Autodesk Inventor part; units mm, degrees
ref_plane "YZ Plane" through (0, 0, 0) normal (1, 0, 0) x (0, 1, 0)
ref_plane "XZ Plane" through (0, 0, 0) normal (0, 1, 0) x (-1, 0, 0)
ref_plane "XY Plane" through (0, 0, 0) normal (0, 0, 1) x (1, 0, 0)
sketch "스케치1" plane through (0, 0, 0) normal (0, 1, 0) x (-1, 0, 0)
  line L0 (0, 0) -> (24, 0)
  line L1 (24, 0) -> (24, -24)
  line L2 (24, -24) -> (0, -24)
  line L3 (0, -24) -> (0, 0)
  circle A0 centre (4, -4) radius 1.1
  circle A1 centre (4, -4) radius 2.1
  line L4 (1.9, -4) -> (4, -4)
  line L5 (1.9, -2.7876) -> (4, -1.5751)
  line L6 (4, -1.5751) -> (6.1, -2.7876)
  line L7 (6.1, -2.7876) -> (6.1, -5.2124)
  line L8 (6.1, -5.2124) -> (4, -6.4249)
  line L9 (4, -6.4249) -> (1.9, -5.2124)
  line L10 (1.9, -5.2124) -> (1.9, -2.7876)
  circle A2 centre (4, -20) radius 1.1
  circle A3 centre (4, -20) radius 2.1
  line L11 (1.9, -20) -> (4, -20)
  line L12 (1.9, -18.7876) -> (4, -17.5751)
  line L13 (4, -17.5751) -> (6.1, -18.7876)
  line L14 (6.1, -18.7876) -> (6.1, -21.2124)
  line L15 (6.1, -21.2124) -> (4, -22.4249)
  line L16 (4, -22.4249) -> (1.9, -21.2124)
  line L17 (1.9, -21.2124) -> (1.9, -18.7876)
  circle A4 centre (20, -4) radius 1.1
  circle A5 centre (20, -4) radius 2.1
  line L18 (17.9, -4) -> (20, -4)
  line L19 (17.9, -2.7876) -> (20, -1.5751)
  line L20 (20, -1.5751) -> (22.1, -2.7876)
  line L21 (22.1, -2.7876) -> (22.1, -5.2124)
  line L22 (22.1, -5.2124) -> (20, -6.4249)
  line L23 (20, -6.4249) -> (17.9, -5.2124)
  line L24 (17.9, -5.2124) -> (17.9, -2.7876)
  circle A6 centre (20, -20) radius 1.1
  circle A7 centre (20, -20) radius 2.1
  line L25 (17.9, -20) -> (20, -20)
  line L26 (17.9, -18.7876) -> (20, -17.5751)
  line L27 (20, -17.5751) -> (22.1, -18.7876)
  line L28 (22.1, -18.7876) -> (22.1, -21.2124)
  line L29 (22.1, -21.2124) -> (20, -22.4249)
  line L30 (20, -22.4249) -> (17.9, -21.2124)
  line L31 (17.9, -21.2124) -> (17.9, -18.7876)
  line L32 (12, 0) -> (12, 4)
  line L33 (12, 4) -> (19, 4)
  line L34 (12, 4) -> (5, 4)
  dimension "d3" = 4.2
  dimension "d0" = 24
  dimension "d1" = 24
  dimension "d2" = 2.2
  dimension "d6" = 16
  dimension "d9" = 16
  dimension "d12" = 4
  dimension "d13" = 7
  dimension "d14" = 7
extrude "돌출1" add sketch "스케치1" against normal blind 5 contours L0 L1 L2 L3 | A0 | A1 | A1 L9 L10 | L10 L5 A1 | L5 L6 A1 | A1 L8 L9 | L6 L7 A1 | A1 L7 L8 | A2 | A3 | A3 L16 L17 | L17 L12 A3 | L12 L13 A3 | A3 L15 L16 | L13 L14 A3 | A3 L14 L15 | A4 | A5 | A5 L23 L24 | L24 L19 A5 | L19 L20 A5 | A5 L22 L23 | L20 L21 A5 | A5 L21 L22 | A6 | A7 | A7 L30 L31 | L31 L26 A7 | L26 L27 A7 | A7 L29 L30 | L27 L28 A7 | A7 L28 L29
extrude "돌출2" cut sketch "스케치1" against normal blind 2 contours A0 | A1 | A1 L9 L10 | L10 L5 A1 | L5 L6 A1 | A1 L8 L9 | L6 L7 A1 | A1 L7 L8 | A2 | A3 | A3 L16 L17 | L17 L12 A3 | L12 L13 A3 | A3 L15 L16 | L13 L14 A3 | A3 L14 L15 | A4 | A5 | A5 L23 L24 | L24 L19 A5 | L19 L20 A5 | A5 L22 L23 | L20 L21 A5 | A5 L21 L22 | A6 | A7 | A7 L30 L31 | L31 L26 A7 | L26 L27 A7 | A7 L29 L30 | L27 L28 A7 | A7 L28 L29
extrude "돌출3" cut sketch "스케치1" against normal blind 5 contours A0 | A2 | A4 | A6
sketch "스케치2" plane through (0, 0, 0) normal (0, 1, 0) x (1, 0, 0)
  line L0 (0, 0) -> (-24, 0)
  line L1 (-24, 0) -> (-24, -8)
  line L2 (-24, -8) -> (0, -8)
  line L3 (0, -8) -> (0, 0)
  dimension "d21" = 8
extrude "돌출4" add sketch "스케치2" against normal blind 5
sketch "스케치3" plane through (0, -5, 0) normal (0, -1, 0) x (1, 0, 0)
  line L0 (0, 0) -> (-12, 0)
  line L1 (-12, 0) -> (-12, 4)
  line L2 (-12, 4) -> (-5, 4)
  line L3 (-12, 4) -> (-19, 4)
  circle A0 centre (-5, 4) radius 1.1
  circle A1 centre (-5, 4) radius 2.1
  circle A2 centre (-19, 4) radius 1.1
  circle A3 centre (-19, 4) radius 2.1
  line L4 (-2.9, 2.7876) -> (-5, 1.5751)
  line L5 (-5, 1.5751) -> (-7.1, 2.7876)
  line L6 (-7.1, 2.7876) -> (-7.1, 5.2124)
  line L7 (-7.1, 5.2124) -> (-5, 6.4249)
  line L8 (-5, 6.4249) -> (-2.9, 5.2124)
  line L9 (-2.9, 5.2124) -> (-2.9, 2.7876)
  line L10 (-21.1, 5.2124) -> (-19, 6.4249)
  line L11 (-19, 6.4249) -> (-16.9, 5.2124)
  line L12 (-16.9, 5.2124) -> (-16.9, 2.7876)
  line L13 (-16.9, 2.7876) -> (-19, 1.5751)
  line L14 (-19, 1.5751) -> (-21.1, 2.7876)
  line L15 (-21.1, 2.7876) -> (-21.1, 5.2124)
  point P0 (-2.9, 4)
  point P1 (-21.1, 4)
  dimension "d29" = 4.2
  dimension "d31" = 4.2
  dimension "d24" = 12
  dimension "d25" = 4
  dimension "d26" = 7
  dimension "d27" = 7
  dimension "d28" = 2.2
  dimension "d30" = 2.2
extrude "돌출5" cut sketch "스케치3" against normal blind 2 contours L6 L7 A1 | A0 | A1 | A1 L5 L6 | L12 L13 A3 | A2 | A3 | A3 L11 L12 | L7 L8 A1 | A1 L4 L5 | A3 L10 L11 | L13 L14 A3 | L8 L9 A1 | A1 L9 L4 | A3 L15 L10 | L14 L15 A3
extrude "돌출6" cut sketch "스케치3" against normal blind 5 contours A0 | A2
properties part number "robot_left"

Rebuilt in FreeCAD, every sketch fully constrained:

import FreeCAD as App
import Part
import Sketcher

V = App.Vector
Q = App.Units.Quantity

doc = App.newDocument("Part")
body = doc.addObject("PartDesign::Body", "Body")

sketch1 = body.newObject("Sketcher::SketchObject", "Sketch")
sketch1.AttachmentSupport = (doc.getObject("XZ_Plane"), [""])
sketch1.MapMode = "FlatFace"
sketch1.addGeometry(Part.LineSegment(V(0, 0, 0), V(0, -24, 0)), False)
sketch1.addGeometry(Part.LineSegment(V(0, -24, 0), V(-24, -24, 0)), False)
sketch1.addGeometry(Part.LineSegment(V(-24, -24, 0), V(-24, 0, 0)), False)
sketch1.addGeometry(Part.LineSegment(V(-24, 0, 0), V(0, 0, 0)), False)
sketch1.addConstraint(Sketcher.Constraint("Coincident", 0, 2, 1, 1))
sketch1.addConstraint(Sketcher.Constraint("Coincident", 1, 2, 2, 1))
sketch1.addConstraint(Sketcher.Constraint("Coincident", 2, 2, 3, 1))
sketch1.addConstraint(Sketcher.Constraint("Coincident", 3, 2, 0, 1))
sketch1.addConstraint(Sketcher.Constraint("Vertical", 0))
sketch1.addConstraint(Sketcher.Constraint("Horizontal", 1))
sketch1.addConstraint(Sketcher.Constraint("Vertical", 2))
sketch1.addConstraint(Sketcher.Constraint("Horizontal", 3))
sketch1.addConstraint(Sketcher.Constraint("Coincident", 3, 2, -1, 1))
sketch1.addConstraint(Sketcher.Constraint("Equal", 3, 0))
sketch1.addConstraint(Sketcher.Constraint("DistanceX", 1, 2, 1, 1, Q("24 mm")))
pad1 = body.newObject("PartDesign::Pad", "Pad")
pad1.Profile = sketch1
pad1.Length = 5

sketch2 = body.newObject("Sketcher::SketchObject", "Sketch001")
sketch2.AttachmentSupport = (doc.getObject("XZ_Plane"), [""])
sketch2.MapMode = "FlatFace"
sketch2.addGeometry(Part.LineSegment(V(-1.9, -2.7876, 0), V(-1.9, -4, 0)), False)
sketch2.addGeometry(Part.LineSegment(V(-1.9, -4, 0), V(-1.9, -5.2124, 0)), False)
sketch2.addGeometry(Part.LineSegment(V(-1.9, -5.2124, 0), V(-4, -6.4249, 0)), False)
sketch2.addGeometry(Part.LineSegment(V(-4, -6.4249, 0), V(-6.1, -5.2124, 0)), False)
sketch2.addGeometry(Part.LineSegment(V(-6.1, -5.2124, 0), V(-6.1, -2.7876, 0)), False)
sketch2.addGeometry(Part.LineSegment(V(-6.1, -2.7876, 0), V(-4, -1.5751, 0)), False)
sketch2.addGeometry(Part.LineSegment(V(-4, -1.5751, 0), V(-1.9, -2.7876, 0)), False)
sketch2.addGeometry(Part.LineSegment(V(-1.9, -18.7876, 0), V(-1.9, -20, 0)), False)
sketch2.addGeometry(Part.LineSegment(V(-1.9, -20, 0), V(-1.9, -21.2124, 0)), False)
sketch2.addGeometry(Part.LineSegment(V(-1.9, -21.2124, 0), V(-4, -22.4249, 0)), False)
sketch2.addGeometry(Part.LineSegment(V(-4, -22.4249, 0), V(-6.1, -21.2124, 0)), False)
sketch2.addGeometry(Part.LineSegment(V(-6.1, -21.2124, 0), V(-6.1, -18.7876, 0)), False)
sketch2.addGeometry(Part.LineSegment(V(-6.1, -18.7876, 0), V(-4, -17.5751, 0)), False)
sketch2.addGeometry(Part.LineSegment(V(-4, -17.5751, 0), V(-1.9, -18.7876, 0)), False)
sketch2.addGeometry(Part.LineSegment(V(-17.9, -2.7876, 0), V(-17.9, -4, 0)), False)
sketch2.addGeometry(Part.LineSegment(V(-17.9, -4, 0), V(-17.9, -5.2124, 0)), False)
sketch2.addGeometry(Part.LineSegment(V(-17.9, -5.2124, 0), V(-20, -6.4249, 0)), False)
sketch2.addGeometry(Part.LineSegment(V(-20, -6.4249, 0), V(-22.1, -5.2124, 0)), False)
sketch2.addGeometry(Part.LineSegment(V(-22.1, -5.2124, 0), V(-22.1, -2.7876, 0)), False)
sketch2.addGeometry(Part.LineSegment(V(-22.1, -2.7876, 0), V(-20, -1.5751, 0)), False)
sketch2.addGeometry(Part.LineSegment(V(-20, -1.5751, 0), V(-17.9, -2.7876, 0)), False)
sketch2.addGeometry(Part.LineSegment(V(-17.9, -18.7876, 0), V(-17.9, -20, 0)), False)
sketch2.addGeometry(Part.LineSegment(V(-17.9, -20, 0), V(-17.9, -21.2124, 0)), False)
sketch2.addGeometry(Part.LineSegment(V(-17.9, -21.2124, 0), V(-20, -22.4249, 0)), False)
sketch2.addGeometry(Part.LineSegment(V(-20, -22.4249, 0), V(-22.1, -21.2124, 0)), False)
sketch2.addGeometry(Part.LineSegment(V(-22.1, -21.2124, 0), V(-22.1, -18.7876, 0)), False)
sketch2.addGeometry(Part.LineSegment(V(-22.1, -18.7876, 0), V(-20, -17.5751, 0)), False)
sketch2.addGeometry(Part.LineSegment(V(-20, -17.5751, 0), V(-17.9, -18.7876, 0)), False)
sketch2.addConstraint(Sketcher.Constraint("Coincident", 0, 2, 1, 1))
sketch2.addConstraint(Sketcher.Constraint("Coincident", 1, 2, 2, 1))
sketch2.addConstraint(Sketcher.Constraint("Coincident", 2, 2, 3, 1))
sketch2.addConstraint(Sketcher.Constraint("Coincident", 3, 2, 4, 1))
sketch2.addConstraint(Sketcher.Constraint("Coincident", 4, 2, 5, 1))
sketch2.addConstraint(Sketcher.Constraint("Coincident", 5, 2, 6, 1))
sketch2.addConstraint(Sketcher.Constraint("Coincident", 6, 2, 0, 1))
sketch2.addConstraint(Sketcher.Constraint("Coincident", 7, 2, 8, 1))
sketch2.addConstraint(Sketcher.Constraint("Coincident", 8, 2, 9, 1))
sketch2.addConstraint(Sketcher.Constraint("Coincident", 9, 2, 10, 1))
sketch2.addConstraint(Sketcher.Constraint("Coincident", 10, 2, 11, 1))
sketch2.addConstraint(Sketcher.Constraint("Coincident", 11, 2, 12, 1))
sketch2.addConstraint(Sketcher.Constraint("Coincident", 12, 2, 13, 1))
sketch2.addConstraint(Sketcher.Constraint("Coincident", 13, 2, 7, 1))
sketch2.addConstraint(Sketcher.Constraint("Coincident", 14, 2, 15, 1))
sketch2.addConstraint(Sketcher.Constraint("Coincident", 15, 2, 16, 1))
sketch2.addConstraint(Sketcher.Constraint("Coincident", 16, 2, 17, 1))
sketch2.addConstraint(Sketcher.Constraint("Coincident", 17, 2, 18, 1))
sketch2.addConstraint(Sketcher.Constraint("Coincident", 18, 2, 19, 1))
sketch2.addConstraint(Sketcher.Constraint("Coincident", 19, 2, 20, 1))
sketch2.addConstraint(Sketcher.Constraint("Coincident", 20, 2, 14, 1))
sketch2.addConstraint(Sketcher.Constraint("Coincident", 21, 2, 22, 1))
sketch2.addConstraint(Sketcher.Constraint("Coincident", 22, 2, 23, 1))
sketch2.addConstraint(Sketcher.Constraint("Coincident", 23, 2, 24, 1))
sketch2.addConstraint(Sketcher.Constraint("Coincident", 24, 2, 25, 1))
sketch2.addConstraint(Sketcher.Constraint("Coincident", 25, 2, 26, 1))
sketch2.addConstraint(Sketcher.Constraint("Coincident", 26, 2, 27, 1))
sketch2.addConstraint(Sketcher.Constraint("Coincident", 27, 2, 21, 1))
sketch2.addConstraint(Sketcher.Constraint("Vertical", 0))
sketch2.addConstraint(Sketcher.Constraint("Vertical", 1))
sketch2.addConstraint(Sketcher.Constraint("Vertical", 4))
sketch2.addConstraint(Sketcher.Constraint("Vertical", 7))
sketch2.addConstraint(Sketcher.Constraint("Vertical", 8))
sketch2.addConstraint(Sketcher.Constraint("Vertical", 11))
sketch2.addConstraint(Sketcher.Constraint("Vertical", 14))
sketch2.addConstraint(Sketcher.Constraint("Vertical", 15))
sketch2.addConstraint(Sketcher.Constraint("Vertical", 18))
sketch2.addConstraint(Sketcher.Constraint("Vertical", 21))
sketch2.addConstraint(Sketcher.Constraint("Vertical", 22))
sketch2.addConstraint(Sketcher.Constraint("Vertical", 25))
sketch2.addConstraint(Sketcher.Constraint("Parallel", 2, 5))
sketch2.addConstraint(Sketcher.Constraint("Parallel", 3, 6))
sketch2.addConstraint(Sketcher.Constraint("Parallel", 5, 9))
sketch2.addConstraint(Sketcher.Constraint("Parallel", 6, 10))
sketch2.addConstraint(Sketcher.Constraint("Parallel", 9, 12))
sketch2.addConstraint(Sketcher.Constraint("Parallel", 10, 13))
sketch2.addConstraint(Sketcher.Constraint("Parallel", 12, 16))
sketch2.addConstraint(Sketcher.Constraint("Parallel", 13, 17))
sketch2.addConstraint(Sketcher.Constraint("Parallel", 16, 19))
sketch2.addConstraint(Sketcher.Constraint("Parallel", 17, 20))
sketch2.addConstraint(Sketcher.Constraint("Parallel", 19, 23))
sketch2.addConstraint(Sketcher.Constraint("Parallel", 20, 24))
sketch2.addConstraint(Sketcher.Constraint("Parallel", 23, 26))
sketch2.addConstraint(Sketcher.Constraint("Parallel", 24, 27))
sketch2.addConstraint(Sketcher.Constraint("Horizontal", 1, 2, 3, 2))
sketch2.addConstraint(Sketcher.Constraint("Horizontal", 4, 2, 6, 2))
sketch2.addConstraint(Sketcher.Constraint("Horizontal", 8, 2, 10, 2))
sketch2.addConstraint(Sketcher.Constraint("Horizontal", 11, 2, 13, 2))
sketch2.addConstraint(Sketcher.Constraint("Horizontal", 0, 2, 14, 2))
sketch2.addConstraint(Sketcher.Constraint("Horizontal", 3, 2, 15, 2))
sketch2.addConstraint(Sketcher.Constraint("Horizontal", 2, 2, 16, 2))
sketch2.addConstraint(Sketcher.Constraint("Horizontal", 15, 2, 17, 2))
sketch2.addConstraint(Sketcher.Constraint("Horizontal", 6, 2, 18, 2))
sketch2.addConstraint(Sketcher.Constraint("Horizontal", 5, 2, 19, 2))
sketch2.addConstraint(Sketcher.Constraint("Horizontal", 7, 2, 21, 2))
sketch2.addConstraint(Sketcher.Constraint("Horizontal", 10, 2, 22, 2))
sketch2.addConstraint(Sketcher.Constraint("Horizontal", 9, 2, 23, 2))
sketch2.addConstraint(Sketcher.Constraint("Horizontal", 22, 2, 24, 2))
sketch2.addConstraint(Sketcher.Constraint("Horizontal", 13, 2, 25, 2))
sketch2.addConstraint(Sketcher.Constraint("Horizontal", 12, 2, 26, 2))
sketch2.addConstraint(Sketcher.Constraint("Vertical", 2, 2, 5, 2))
sketch2.addConstraint(Sketcher.Constraint("Vertical", 6, 2, 7, 2))
sketch2.addConstraint(Sketcher.Constraint("Vertical", 5, 2, 9, 2))
sketch2.addConstraint(Sketcher.Constraint("Vertical", 20, 2, 21, 2))
sketch2.addConstraint(Sketcher.Constraint("Equal", 0, 1))
sketch2.addConstraint(Sketcher.Constraint("Equal", 1, 7))
sketch2.addConstraint(Sketcher.Constraint("Equal", 7, 8))
sketch2.addConstraint(Sketcher.Constraint("DistanceY", 0, 2, -1, 1, Q("4 mm")))
sketch2.addConstraint(Sketcher.Constraint("DistanceX", 2, 2, -1, 1, Q("4 mm")))
sketch2.addConstraint(Sketcher.Constraint("DistanceY", 7, 2, 0, 2, Q("16 mm")))
sketch2.addConstraint(Sketcher.Constraint("DistanceX", 14, 2, 0, 2, Q("16 mm")))
sketch2.addConstraint(Sketcher.Constraint("DistanceX", 3, 2, 1, 2, Q("4.2 mm")))
sketch2.addConstraint(Sketcher.Constraint("Distance", 2, Q("2.425 mm")))
sketch2.addConstraint(Sketcher.Constraint("DistanceY", 0, 2, 0, 1, Q("1.2124 mm")))
pocket1 = body.newObject("PartDesign::Pocket", "Pocket")
pocket1.Profile = sketch2
pocket1.Length = 2
pocket1.Reversed = True

sketch3 = body.newObject("Sketcher::SketchObject", "Sketch002")
sketch3.AttachmentSupport = (doc.getObject("XZ_Plane"), [""])
sketch3.MapMode = "FlatFace"
sketch3.addGeometry(Part.Circle(V(-4, -4, 0), V(0, 0, 1), 1.1), False)
sketch3.addGeometry(Part.Circle(V(-4, -20, 0), V(0, 0, 1), 1.1), False)
sketch3.addGeometry(Part.Circle(V(-20, -4, 0), V(0, 0, 1), 1.1), False)
sketch3.addGeometry(Part.Circle(V(-20, -20, 0), V(0, 0, 1), 1.1), False)
sketch3.addConstraint(Sketcher.Constraint("Equal", 0, 1))
sketch3.addConstraint(Sketcher.Constraint("Equal", 1, 2))
sketch3.addConstraint(Sketcher.Constraint("Equal", 2, 3))
sketch3.addConstraint(Sketcher.Constraint("Horizontal", 0, 3, 2, 3))
sketch3.addConstraint(Sketcher.Constraint("Horizontal", 1, 3, 3, 3))
sketch3.addConstraint(Sketcher.Constraint("Vertical", 0, 3, 1, 3))
sketch3.addConstraint(Sketcher.Constraint("Vertical", 2, 3, 3, 3))
sketch3.addConstraint(Sketcher.Constraint("Diameter", 0, Q("2.2 mm")))
sketch3.addConstraint(Sketcher.Constraint("DistanceX", 0, 3, -1, 1, Q("4 mm")))
sketch3.addConstraint(Sketcher.Constraint("DistanceY", 0, 3, -1, 1, Q("4 mm")))
sketch3.addConstraint(Sketcher.Constraint("DistanceY", 1, 3, 0, 3, Q("16 mm")))
sketch3.addConstraint(Sketcher.Constraint("DistanceX", 2, 3, 0, 3, Q("16 mm")))
pocket2 = body.newObject("PartDesign::Pocket", "Pocket001")
pocket2.Profile = sketch3
pocket2.Length = 5
pocket2.Reversed = True

sketch4 = body.newObject("Sketcher::SketchObject", "Sketch003")
sketch4.AttachmentSupport = (doc.getObject("XZ_Plane"), [""])
sketch4.MapMode = "FlatFace"
sketch4.addGeometry(Part.LineSegment(V(0, 8, 0), V(0, 0, 0)), False)
sketch4.addGeometry(Part.LineSegment(V(0, 0, 0), V(-24, 0, 0)), False)
sketch4.addGeometry(Part.LineSegment(V(-24, 0, 0), V(-24, 8, 0)), False)
sketch4.addGeometry(Part.LineSegment(V(-24, 8, 0), V(0, 8, 0)), False)
sketch4.addConstraint(Sketcher.Constraint("Coincident", 0, 2, 1, 1))
sketch4.addConstraint(Sketcher.Constraint("Coincident", 1, 2, 2, 1))
sketch4.addConstraint(Sketcher.Constraint("Coincident", 2, 2, 3, 1))
sketch4.addConstraint(Sketcher.Constraint("Coincident", 3, 2, 0, 1))
sketch4.addConstraint(Sketcher.Constraint("Vertical", 0))
sketch4.addConstraint(Sketcher.Constraint("Horizontal", 1))
sketch4.addConstraint(Sketcher.Constraint("Vertical", 2))
sketch4.addConstraint(Sketcher.Constraint("Horizontal", 3))
sketch4.addConstraint(Sketcher.Constraint("Coincident", 0, 2, -1, 1))
sketch4.addConstraint(Sketcher.Constraint("DistanceY", 0, 2, 0, 1, Q("8 mm")))
sketch4.addConstraint(Sketcher.Constraint("DistanceX", 1, 2, 1, 1, Q("24 mm")))
pad2 = body.newObject("PartDesign::Pad", "Pad001")
pad2.Profile = sketch4
pad2.Length = 5

sketch5 = body.newObject("Sketcher::SketchObject", "Sketch004")
sketch5.AttachmentSupport = (doc.getObject("XZ_Plane"), [""])
sketch5.MapMode = "FlatFace"
sketch5.AttachmentOffset = App.Placement(V(0, 0, 5), App.Rotation())
sketch5.addGeometry(Part.LineSegment(V(-7.1, 5.2124, 0), V(-7.1, 4, 0)), False)
sketch5.addGeometry(Part.LineSegment(V(-7.1, 4, 0), V(-7.1, 2.7876, 0)), False)
sketch5.addGeometry(Part.LineSegment(V(-7.1, 2.7876, 0), V(-5, 1.5751, 0)), False)
sketch5.addGeometry(Part.LineSegment(V(-5, 1.5751, 0), V(-2.9, 2.7876, 0)), False)
sketch5.addGeometry(Part.LineSegment(V(-2.9, 2.7876, 0), V(-2.9, 5.2124, 0)), False)
sketch5.addGeometry(Part.LineSegment(V(-2.9, 5.2124, 0), V(-5, 6.4249, 0)), False)
sketch5.addGeometry(Part.LineSegment(V(-5, 6.4249, 0), V(-7.1, 5.2124, 0)), False)
sketch5.addGeometry(Part.LineSegment(V(-16.9, 2.7876, 0), V(-16.9, 4, 0)), False)
sketch5.addGeometry(Part.LineSegment(V(-16.9, 4, 0), V(-16.9, 5.2124, 0)), False)
sketch5.addGeometry(Part.LineSegment(V(-16.9, 5.2124, 0), V(-19, 6.4249, 0)), False)
sketch5.addGeometry(Part.LineSegment(V(-19, 6.4249, 0), V(-21.1, 5.2124, 0)), False)
sketch5.addGeometry(Part.LineSegment(V(-21.1, 5.2124, 0), V(-21.1, 2.7876, 0)), False)
sketch5.addGeometry(Part.LineSegment(V(-21.1, 2.7876, 0), V(-19, 1.5751, 0)), False)
sketch5.addGeometry(Part.LineSegment(V(-19, 1.5751, 0), V(-16.9, 2.7876, 0)), False)
sketch5.addConstraint(Sketcher.Constraint("Coincident", 0, 2, 1, 1))
sketch5.addConstraint(Sketcher.Constraint("Coincident", 1, 2, 2, 1))
sketch5.addConstraint(Sketcher.Constraint("Coincident", 2, 2, 3, 1))
sketch5.addConstraint(Sketcher.Constraint("Coincident", 3, 2, 4, 1))
sketch5.addConstraint(Sketcher.Constraint("Coincident", 4, 2, 5, 1))
sketch5.addConstraint(Sketcher.Constraint("Coincident", 5, 2, 6, 1))
sketch5.addConstraint(Sketcher.Constraint("Coincident", 6, 2, 0, 1))
sketch5.addConstraint(Sketcher.Constraint("Coincident", 7, 2, 8, 1))
sketch5.addConstraint(Sketcher.Constraint("Coincident", 8, 2, 9, 1))
sketch5.addConstraint(Sketcher.Constraint("Coincident", 9, 2, 10, 1))
sketch5.addConstraint(Sketcher.Constraint("Coincident", 10, 2, 11, 1))
sketch5.addConstraint(Sketcher.Constraint("Coincident", 11, 2, 12, 1))
sketch5.addConstraint(Sketcher.Constraint("Coincident", 12, 2, 13, 1))
sketch5.addConstraint(Sketcher.Constraint("Coincident", 13, 2, 7, 1))
sketch5.addConstraint(Sketcher.Constraint("Vertical", 0))
sketch5.addConstraint(Sketcher.Constraint("Vertical", 1))
sketch5.addConstraint(Sketcher.Constraint("Vertical", 4))
sketch5.addConstraint(Sketcher.Constraint("Vertical", 7))
sketch5.addConstraint(Sketcher.Constraint("Vertical", 8))
sketch5.addConstraint(Sketcher.Constraint("Vertical", 11))
sketch5.addConstraint(Sketcher.Constraint("Parallel", 2, 5))
sketch5.addConstraint(Sketcher.Constraint("Parallel", 3, 6))
sketch5.addConstraint(Sketcher.Constraint("Parallel", 5, 9))
sketch5.addConstraint(Sketcher.Constraint("Parallel", 6, 10))
sketch5.addConstraint(Sketcher.Constraint("Parallel", 9, 12))
sketch5.addConstraint(Sketcher.Constraint("Parallel", 10, 13))
sketch5.addConstraint(Sketcher.Constraint("Horizontal", 1, 2, 3, 2))
sketch5.addConstraint(Sketcher.Constraint("Horizontal", 4, 2, 6, 2))
sketch5.addConstraint(Sketcher.Constraint("Horizontal", 0, 2, 7, 2))
sketch5.addConstraint(Sketcher.Constraint("Horizontal", 6, 2, 8, 2))
sketch5.addConstraint(Sketcher.Constraint("Horizontal", 5, 2, 9, 2))
sketch5.addConstraint(Sketcher.Constraint("Horizontal", 8, 2, 10, 2))
sketch5.addConstraint(Sketcher.Constraint("Horizontal", 3, 2, 11, 2))
sketch5.addConstraint(Sketcher.Constraint("Horizontal", 2, 2, 12, 2))
sketch5.addConstraint(Sketcher.Constraint("Vertical", 2, 2, 5, 2))
sketch5.addConstraint(Sketcher.Constraint("Equal", 0, 1))
sketch5.addConstraint(Sketcher.Constraint("DistanceY", -1, 1, 0, 2, Q("4 mm")))
sketch5.addConstraint(Sketcher.Constraint("DistanceX", 1, 2, 3, 2, Q("4.2 mm")))
sketch5.addConstraint(Sketcher.Constraint("DistanceX", 2, 2, -1, 1, Q("5 mm")))
sketch5.addConstraint(Sketcher.Constraint("DistanceX", 9, 2, -1, 1, Q("19 mm")))
sketch5.addConstraint(Sketcher.Constraint("Distance", 2, Q("2.425 mm")))
sketch5.addConstraint(Sketcher.Constraint("DistanceY", 0, 2, 0, 1, Q("1.2124 mm")))
pocket3 = body.newObject("PartDesign::Pocket", "Pocket002")
pocket3.Profile = sketch5
pocket3.Length = 2

sketch6 = body.newObject("Sketcher::SketchObject", "Sketch005")
sketch6.AttachmentSupport = (doc.getObject("XZ_Plane"), [""])
sketch6.MapMode = "FlatFace"
sketch6.AttachmentOffset = App.Placement(V(0, 0, 5), App.Rotation())
sketch6.addGeometry(Part.Circle(V(-5, 4, 0), V(0, 0, 1), 1.1), False)
sketch6.addGeometry(Part.Circle(V(-19, 4, 0), V(0, 0, 1), 1.1), False)
sketch6.addConstraint(Sketcher.Constraint("Equal", 0, 1))
sketch6.addConstraint(Sketcher.Constraint("Horizontal", 0, 3, 1, 3))
sketch6.addConstraint(Sketcher.Constraint("Diameter", 0, Q("2.2 mm")))
sketch6.addConstraint(Sketcher.Constraint("DistanceY", -1, 1, 0, 3, Q("4 mm")))
sketch6.addConstraint(Sketcher.Constraint("DistanceX", 0, 3, -1, 1, Q("5 mm")))
sketch6.addConstraint(Sketcher.Constraint("DistanceX", 1, 3, -1, 1, Q("19 mm")))
pocket4 = body.newObject("PartDesign::Pocket", "Pocket003")
pocket4.Profile = sketch6
pocket4.Length = 5

doc.recompute()
